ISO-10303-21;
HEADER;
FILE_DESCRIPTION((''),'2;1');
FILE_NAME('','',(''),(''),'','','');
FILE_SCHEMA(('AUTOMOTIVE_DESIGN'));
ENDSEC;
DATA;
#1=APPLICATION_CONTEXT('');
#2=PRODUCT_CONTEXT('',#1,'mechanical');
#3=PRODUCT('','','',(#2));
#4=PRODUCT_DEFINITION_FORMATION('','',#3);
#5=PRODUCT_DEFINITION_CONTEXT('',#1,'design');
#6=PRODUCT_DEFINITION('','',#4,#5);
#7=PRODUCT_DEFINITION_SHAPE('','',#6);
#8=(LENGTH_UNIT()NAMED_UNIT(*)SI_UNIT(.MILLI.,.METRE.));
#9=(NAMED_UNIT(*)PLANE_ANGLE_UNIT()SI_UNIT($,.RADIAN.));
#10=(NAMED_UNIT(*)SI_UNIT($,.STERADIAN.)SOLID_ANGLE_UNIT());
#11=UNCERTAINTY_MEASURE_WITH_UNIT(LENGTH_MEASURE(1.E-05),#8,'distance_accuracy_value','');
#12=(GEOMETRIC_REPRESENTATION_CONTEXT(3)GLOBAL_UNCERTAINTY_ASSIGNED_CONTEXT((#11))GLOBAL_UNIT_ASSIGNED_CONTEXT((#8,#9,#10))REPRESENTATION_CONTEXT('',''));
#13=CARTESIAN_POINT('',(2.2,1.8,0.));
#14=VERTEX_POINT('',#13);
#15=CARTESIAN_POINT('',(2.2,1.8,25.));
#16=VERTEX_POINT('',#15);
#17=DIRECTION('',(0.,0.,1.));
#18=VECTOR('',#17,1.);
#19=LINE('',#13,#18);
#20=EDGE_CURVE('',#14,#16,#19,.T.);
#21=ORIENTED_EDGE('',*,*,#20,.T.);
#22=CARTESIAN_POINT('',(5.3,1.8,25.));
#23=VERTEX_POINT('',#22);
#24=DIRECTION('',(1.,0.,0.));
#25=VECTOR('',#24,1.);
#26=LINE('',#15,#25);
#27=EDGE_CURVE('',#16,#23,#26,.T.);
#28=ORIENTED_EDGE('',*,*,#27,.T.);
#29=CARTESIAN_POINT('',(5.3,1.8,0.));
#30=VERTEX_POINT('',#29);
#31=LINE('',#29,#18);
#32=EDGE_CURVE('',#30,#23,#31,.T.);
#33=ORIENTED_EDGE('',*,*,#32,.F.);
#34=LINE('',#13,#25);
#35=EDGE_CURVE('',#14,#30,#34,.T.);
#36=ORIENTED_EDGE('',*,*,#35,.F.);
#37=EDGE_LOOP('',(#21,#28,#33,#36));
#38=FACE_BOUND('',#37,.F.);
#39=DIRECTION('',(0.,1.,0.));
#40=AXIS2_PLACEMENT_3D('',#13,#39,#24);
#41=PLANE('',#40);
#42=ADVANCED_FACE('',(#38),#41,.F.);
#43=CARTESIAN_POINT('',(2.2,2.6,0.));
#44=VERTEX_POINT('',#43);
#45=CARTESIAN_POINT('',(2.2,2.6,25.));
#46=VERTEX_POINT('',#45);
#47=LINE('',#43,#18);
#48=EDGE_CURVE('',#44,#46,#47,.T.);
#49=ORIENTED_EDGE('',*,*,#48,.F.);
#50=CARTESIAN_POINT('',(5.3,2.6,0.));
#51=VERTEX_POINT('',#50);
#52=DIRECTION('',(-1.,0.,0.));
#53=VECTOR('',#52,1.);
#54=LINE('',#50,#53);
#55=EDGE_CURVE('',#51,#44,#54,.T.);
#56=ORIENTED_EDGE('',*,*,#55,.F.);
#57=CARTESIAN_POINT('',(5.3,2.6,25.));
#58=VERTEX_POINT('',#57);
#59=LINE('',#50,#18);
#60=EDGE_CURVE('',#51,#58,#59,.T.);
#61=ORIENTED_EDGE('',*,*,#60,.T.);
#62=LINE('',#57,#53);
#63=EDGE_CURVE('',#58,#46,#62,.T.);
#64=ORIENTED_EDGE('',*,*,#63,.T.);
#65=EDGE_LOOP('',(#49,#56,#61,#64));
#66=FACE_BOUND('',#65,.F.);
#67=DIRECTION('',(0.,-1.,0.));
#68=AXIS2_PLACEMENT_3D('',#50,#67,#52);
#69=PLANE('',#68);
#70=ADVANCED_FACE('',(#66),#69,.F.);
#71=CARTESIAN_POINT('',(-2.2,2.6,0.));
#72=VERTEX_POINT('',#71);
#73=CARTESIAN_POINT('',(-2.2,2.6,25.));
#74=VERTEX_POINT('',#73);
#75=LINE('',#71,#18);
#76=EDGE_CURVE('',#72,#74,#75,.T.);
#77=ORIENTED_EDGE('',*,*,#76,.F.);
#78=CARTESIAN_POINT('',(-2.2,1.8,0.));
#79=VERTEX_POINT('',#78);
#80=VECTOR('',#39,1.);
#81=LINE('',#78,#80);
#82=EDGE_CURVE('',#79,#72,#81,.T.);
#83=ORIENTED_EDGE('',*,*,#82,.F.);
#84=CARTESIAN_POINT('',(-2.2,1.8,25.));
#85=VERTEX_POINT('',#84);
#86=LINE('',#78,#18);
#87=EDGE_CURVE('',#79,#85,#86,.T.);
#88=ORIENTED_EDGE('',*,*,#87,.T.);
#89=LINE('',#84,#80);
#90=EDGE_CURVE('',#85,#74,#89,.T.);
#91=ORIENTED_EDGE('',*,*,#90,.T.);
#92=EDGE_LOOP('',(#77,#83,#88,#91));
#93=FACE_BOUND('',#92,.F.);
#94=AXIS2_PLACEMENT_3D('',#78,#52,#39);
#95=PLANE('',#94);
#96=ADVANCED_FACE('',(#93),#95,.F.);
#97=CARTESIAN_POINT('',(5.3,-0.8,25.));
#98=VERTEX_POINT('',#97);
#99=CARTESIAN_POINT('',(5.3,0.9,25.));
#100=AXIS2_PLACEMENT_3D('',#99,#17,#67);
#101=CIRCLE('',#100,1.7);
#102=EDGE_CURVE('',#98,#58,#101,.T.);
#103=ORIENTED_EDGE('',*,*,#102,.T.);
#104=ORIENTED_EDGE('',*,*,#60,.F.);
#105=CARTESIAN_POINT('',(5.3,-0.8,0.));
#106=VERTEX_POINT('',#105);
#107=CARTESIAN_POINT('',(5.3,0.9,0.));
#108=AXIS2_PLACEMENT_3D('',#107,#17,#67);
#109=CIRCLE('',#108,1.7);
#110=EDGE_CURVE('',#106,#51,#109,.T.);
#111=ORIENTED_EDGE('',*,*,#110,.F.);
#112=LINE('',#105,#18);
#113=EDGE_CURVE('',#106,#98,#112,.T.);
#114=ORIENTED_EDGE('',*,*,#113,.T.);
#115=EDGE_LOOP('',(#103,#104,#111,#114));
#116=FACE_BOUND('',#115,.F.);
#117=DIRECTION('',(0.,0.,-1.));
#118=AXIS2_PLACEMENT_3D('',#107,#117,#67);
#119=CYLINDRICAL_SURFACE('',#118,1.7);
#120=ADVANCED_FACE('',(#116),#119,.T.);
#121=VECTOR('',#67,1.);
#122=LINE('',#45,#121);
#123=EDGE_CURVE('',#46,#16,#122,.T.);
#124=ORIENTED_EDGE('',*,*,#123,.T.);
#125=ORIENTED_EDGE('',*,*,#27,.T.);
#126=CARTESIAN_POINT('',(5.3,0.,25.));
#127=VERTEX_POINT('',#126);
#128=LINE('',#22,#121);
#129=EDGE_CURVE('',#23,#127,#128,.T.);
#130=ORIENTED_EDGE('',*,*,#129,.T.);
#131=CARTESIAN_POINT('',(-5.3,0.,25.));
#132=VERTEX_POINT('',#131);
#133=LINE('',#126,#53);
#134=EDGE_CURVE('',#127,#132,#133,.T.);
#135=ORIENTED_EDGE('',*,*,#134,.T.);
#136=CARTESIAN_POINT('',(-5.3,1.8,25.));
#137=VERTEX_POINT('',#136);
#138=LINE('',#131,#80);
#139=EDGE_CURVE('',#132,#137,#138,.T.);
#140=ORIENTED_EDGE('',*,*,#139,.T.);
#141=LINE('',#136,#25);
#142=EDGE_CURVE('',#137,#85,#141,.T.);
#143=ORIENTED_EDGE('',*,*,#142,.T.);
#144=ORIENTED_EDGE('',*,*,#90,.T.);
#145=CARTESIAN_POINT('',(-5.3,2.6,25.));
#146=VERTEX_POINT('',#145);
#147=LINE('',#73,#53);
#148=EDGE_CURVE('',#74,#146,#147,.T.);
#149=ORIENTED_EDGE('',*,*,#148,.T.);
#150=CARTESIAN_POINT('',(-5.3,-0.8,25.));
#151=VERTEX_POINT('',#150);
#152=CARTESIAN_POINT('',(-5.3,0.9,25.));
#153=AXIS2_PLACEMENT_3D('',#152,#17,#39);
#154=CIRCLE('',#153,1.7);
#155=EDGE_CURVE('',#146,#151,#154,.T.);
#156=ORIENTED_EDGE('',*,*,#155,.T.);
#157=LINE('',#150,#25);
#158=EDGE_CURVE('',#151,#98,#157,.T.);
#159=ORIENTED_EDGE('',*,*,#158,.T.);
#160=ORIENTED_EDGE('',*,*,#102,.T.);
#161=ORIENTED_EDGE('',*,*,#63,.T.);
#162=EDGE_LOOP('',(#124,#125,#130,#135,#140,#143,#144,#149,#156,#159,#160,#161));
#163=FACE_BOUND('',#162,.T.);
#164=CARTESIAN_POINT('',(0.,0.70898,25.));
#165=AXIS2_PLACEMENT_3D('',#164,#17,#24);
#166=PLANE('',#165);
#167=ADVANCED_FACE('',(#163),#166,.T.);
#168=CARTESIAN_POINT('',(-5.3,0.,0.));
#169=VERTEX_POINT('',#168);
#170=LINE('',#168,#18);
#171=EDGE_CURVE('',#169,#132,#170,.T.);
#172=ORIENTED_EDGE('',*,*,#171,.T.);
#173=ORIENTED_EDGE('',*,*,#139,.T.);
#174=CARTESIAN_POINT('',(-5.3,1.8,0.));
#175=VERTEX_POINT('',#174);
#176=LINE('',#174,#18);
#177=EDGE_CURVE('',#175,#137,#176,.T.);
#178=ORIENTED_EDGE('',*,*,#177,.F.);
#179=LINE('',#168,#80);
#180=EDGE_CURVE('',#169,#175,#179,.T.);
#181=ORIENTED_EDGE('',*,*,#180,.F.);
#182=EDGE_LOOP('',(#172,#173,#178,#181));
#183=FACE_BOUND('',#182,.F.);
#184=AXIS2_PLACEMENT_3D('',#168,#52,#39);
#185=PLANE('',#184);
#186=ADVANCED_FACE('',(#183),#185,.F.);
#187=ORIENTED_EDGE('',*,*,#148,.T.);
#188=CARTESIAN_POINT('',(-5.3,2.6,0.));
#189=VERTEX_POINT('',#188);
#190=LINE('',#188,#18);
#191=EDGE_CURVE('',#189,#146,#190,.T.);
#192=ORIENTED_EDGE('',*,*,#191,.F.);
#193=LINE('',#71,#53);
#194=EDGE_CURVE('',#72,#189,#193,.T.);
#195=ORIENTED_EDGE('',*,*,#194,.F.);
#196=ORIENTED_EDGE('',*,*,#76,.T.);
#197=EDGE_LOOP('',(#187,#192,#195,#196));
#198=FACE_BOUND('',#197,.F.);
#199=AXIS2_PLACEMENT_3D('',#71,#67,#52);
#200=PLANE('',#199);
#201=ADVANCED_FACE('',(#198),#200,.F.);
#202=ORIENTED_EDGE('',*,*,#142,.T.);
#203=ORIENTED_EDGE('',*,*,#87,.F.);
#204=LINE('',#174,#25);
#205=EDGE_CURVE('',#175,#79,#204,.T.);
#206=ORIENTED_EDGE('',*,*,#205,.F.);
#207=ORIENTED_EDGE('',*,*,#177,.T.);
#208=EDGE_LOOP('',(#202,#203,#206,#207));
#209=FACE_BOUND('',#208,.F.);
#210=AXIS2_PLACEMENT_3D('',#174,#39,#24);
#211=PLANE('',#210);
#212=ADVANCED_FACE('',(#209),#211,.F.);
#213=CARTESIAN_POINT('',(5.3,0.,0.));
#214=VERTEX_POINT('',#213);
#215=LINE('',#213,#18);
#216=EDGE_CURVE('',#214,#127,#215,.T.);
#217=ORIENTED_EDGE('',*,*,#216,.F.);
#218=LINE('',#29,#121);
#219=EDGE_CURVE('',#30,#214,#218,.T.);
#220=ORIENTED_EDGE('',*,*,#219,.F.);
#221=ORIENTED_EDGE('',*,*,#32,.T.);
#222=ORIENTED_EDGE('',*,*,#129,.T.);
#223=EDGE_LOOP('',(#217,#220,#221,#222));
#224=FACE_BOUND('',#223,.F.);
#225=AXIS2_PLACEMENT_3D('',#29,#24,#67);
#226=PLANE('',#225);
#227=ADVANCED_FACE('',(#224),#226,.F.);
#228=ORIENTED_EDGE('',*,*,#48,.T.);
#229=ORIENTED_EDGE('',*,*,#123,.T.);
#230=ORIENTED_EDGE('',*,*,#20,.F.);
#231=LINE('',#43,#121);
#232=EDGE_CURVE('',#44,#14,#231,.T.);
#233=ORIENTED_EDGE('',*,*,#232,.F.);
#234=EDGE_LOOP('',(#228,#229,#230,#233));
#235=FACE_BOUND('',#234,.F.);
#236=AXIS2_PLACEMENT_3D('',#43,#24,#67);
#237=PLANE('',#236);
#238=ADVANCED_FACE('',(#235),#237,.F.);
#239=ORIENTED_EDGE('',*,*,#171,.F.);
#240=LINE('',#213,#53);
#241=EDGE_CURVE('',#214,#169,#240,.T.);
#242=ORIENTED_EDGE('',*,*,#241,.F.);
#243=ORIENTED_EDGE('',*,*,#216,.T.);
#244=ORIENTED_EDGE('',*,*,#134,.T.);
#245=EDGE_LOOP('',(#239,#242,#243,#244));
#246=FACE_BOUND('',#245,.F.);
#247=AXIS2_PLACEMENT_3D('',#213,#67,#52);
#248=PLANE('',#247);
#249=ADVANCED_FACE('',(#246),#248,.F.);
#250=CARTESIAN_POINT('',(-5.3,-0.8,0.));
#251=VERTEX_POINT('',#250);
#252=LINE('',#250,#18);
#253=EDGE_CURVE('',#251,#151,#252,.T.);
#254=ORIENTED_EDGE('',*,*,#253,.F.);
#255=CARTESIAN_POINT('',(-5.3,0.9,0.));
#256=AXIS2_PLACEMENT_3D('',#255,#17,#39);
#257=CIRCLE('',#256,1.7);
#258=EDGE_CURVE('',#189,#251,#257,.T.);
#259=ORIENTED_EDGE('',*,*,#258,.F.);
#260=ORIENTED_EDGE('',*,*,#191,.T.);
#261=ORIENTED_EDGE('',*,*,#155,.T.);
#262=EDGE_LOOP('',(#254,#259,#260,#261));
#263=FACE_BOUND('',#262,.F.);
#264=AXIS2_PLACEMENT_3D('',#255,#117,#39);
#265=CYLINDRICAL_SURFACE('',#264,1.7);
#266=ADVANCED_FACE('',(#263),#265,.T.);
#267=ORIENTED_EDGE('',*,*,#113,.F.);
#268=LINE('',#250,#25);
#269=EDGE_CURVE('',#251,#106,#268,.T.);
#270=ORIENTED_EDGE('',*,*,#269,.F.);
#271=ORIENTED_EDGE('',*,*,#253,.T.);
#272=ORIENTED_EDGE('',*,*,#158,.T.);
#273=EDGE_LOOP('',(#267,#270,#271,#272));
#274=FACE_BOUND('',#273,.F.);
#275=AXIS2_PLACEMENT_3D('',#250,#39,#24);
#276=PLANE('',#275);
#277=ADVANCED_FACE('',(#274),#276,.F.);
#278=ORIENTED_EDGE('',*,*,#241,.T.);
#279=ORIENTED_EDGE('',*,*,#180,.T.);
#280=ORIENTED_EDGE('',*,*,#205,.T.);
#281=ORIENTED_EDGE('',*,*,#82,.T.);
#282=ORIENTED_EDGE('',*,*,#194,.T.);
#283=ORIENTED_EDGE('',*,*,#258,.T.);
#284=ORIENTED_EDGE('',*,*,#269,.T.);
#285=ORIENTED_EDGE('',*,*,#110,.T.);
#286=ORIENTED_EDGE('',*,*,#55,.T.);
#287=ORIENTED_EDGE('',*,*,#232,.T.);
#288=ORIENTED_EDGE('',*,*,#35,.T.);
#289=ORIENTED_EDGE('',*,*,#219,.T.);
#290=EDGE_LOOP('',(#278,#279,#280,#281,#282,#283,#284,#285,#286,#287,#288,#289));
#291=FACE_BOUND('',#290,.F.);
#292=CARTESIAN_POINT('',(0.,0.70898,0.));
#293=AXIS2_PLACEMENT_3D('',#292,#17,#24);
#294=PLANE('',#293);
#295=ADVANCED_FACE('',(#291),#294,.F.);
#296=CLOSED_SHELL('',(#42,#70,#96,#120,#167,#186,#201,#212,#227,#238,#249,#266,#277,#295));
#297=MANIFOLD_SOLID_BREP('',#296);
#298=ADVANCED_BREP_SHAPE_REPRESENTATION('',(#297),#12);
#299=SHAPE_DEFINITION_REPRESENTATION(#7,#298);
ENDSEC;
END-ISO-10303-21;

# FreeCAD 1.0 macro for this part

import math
import FreeCAD as App
import Part
import Sketcher
from FreeCAD import Vector
Q = App.Units.Quantity

doc = App.newDocument("Part")
body = doc.addObject("PartDesign::Body", "Body")

# Sketch on XY plane
sketch1 = body.newObject("Sketcher::SketchObject", "Sketch")
sketch1.AttachmentSupport = (doc.getObject("XY_Plane"), [""])
sketch1.MapMode = "FlatFace"
sketch1.addGeometry([
    Part.LineSegment(Vector(5.3, 0, 0), Vector(-5.3, 0, 0)),  # 0
    Part.LineSegment(Vector(-5.3, 0, 0), Vector(-5.3, 1.8, 0)),  # 1
    Part.LineSegment(Vector(-5.3, 1.8, 0), Vector(-2.2, 1.8, 0)),  # 2
    Part.LineSegment(Vector(-2.2, 1.8, 0), Vector(-2.2, 2.6, 0)),  # 3
    Part.LineSegment(Vector(-2.2, 2.6, 0), Vector(-5.3, 2.6, 0)),  # 4
    Part.ArcOfCircle(Part.Circle(Vector(-5.3, 0.9, 0), Vector(0, 0, 1), 1.7), math.radians(90), math.radians(270)),  # 5
    Part.LineSegment(Vector(-5.3, -0.8, 0), Vector(5.3, -0.8, 0)),  # 6
    Part.ArcOfCircle(Part.Circle(Vector(5.3, 0.9, 0), Vector(0, 0, 1), 1.7), math.radians(-90), math.radians(90)),  # 7
    Part.LineSegment(Vector(5.3, 2.6, 0), Vector(2.2, 2.6, 0)),  # 8
    Part.LineSegment(Vector(2.2, 2.6, 0), Vector(2.2, 1.8, 0)),  # 9
    Part.LineSegment(Vector(2.2, 1.8, 0), Vector(5.3, 1.8, 0)),  # 10
    Part.LineSegment(Vector(5.3, 1.8, 0), Vector(5.3, 0, 0)),  # 11
], False)
sketch1.addConstraint([
    Sketcher.Constraint("Coincident", 0, 2, 1, 1),
    Sketcher.Constraint("Coincident", 1, 2, 2, 1),
    Sketcher.Constraint("Coincident", 2, 2, 3, 1),
    Sketcher.Constraint("Coincident", 3, 2, 4, 1),
    Sketcher.Constraint("Tangent", 4, 2, 5, 1),
    Sketcher.Constraint("Tangent", 5, 2, 6, 1),
    Sketcher.Constraint("Tangent", 6, 2, 7, 1),
    Sketcher.Constraint("Tangent", 7, 2, 8, 1),
    Sketcher.Constraint("Coincident", 8, 2, 9, 1),
    Sketcher.Constraint("Coincident", 9, 2, 10, 1),
    Sketcher.Constraint("Coincident", 10, 2, 11, 1),
    Sketcher.Constraint("Coincident", 11, 2, 0, 1),
    Sketcher.Constraint("Horizontal", 0),
    Sketcher.Constraint("Vertical", 1),
    Sketcher.Constraint("Horizontal", 2),
    Sketcher.Constraint("Vertical", 3),
    Sketcher.Constraint("Horizontal", 4),
    Sketcher.Constraint("Horizontal", 6),
    Sketcher.Constraint("Horizontal", 8),
    Sketcher.Constraint("Vertical", 9),
    Sketcher.Constraint("Horizontal", 10),
    Sketcher.Constraint("Vertical", 11),
    Sketcher.Constraint("Equal", 5, 7),
    Sketcher.Constraint("Symmetric", 0, 2, 11, 2, -1, 1),
    Sketcher.Constraint("Symmetric", 2, 2, 9, 2, -2),
    Sketcher.Constraint("Vertical", 5, 3, 0, 2),
    Sketcher.Constraint("Vertical", 7, 2, 10, 2),
    Sketcher.Constraint("Radius", 5, Q("1.7 mm")),
    Sketcher.Constraint("DistanceX", 0, 2, 0, 1, Q("10.6 mm")),
    Sketcher.Constraint("DistanceX", 2, 1, 2, 2, Q("3.1 mm")),
    Sketcher.Constraint("DistanceY", 1, 1, 1, 2, Q("1.8 mm")),
    Sketcher.Constraint("DistanceY", 3, 1, 3, 2, Q("0.8 mm")),
])
pad1 = body.newObject("PartDesign::Pad", "Pad")
pad1.Profile = sketch1
pad1.Length = 25

doc.recompute()
